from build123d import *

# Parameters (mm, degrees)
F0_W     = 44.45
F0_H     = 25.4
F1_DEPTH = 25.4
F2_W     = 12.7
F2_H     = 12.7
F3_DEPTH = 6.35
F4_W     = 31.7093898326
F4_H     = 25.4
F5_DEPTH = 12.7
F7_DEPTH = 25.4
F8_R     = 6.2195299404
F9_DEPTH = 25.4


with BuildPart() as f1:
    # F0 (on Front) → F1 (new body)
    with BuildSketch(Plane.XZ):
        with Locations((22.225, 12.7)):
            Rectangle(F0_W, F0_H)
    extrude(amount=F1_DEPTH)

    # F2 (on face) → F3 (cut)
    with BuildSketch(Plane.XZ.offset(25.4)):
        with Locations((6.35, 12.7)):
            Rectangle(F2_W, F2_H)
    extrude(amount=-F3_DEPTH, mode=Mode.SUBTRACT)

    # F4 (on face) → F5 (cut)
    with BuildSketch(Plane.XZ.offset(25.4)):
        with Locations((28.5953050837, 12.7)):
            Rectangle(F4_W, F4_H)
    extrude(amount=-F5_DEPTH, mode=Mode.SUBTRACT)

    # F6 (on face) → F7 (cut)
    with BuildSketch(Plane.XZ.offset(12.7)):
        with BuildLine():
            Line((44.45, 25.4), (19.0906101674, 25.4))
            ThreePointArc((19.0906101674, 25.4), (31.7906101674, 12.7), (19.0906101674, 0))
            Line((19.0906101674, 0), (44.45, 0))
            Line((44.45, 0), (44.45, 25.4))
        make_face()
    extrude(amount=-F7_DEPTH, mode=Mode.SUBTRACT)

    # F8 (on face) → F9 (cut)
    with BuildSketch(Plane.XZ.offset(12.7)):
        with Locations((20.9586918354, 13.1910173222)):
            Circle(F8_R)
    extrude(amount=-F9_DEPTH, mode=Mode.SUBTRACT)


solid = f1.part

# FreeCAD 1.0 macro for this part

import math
import FreeCAD as App
import Part
import Sketcher
from FreeCAD import Vector
Q = App.Units.Quantity

doc = App.newDocument("Part")
body = doc.addObject("PartDesign::Body", "Body")

sketch1 = body.newObject("Sketcher::SketchObject", "Sketch")
sketch1.AttachmentSupport = (doc.getObject("XZ_Plane"), [""])
sketch1.MapMode = "FlatFace"
sketch1.addGeometry([
    Part.LineSegment(Vector(0, 25, 0), Vector(0, 0, 0)),
    Part.LineSegment(Vector(0, 0, 0), Vector(44, 0, 0)),
    Part.LineSegment(Vector(44, 0, 0), Vector(44, 25, 0)),
    Part.LineSegment(Vector(44, 25, 0), Vector(0, 25, 0)),
], False)
sketch1.addConstraint([
    Sketcher.Constraint("Coincident", 0, 2, 1, 1),
    Sketcher.Constraint("Coincident", 1, 2, 2, 1),
    Sketcher.Constraint("Coincident", 2, 2, 3, 1),
    Sketcher.Constraint("Coincident", 3, 2, 0, 1),
    Sketcher.Constraint("Vertical", 0),
    Sketcher.Constraint("Horizontal", 1),
    Sketcher.Constraint("Vertical", 2),
    Sketcher.Constraint("Horizontal", 3),
    Sketcher.Constraint("Coincident", 0, 2, -1, 1),
    Sketcher.Constraint("DistanceY", 0, 2, 0, 1, Q("1 in")),
    Sketcher.Constraint("DistanceX", 1, 1, 1, 2, Q("1.75 in")),
])
pad1 = body.newObject("PartDesign::Pad", "Pad")
pad1.Profile = sketch1
pad1.Length = Q("1 in")

sketch2 = body.newObject("Sketcher::SketchObject", "Sketch001")
sketch2.AttachmentSupport = (doc.getObject("XZ_Plane"), [""])
sketch2.MapMode = "FlatFace"
sketch2.AttachmentOffset = App.Placement(Vector(0, 0, 1 * 25.4), App.Rotation())
sketch2.addGeometry([
    Part.LineSegment(Vector(0, 19, 0), Vector(0, 6, 0)),
    Part.LineSegment(Vector(0, 6, 0), Vector(13, 6, 0)),
    Part.LineSegment(Vector(13, 6, 0), Vector(13, 19, 0)),
    Part.LineSegment(Vector(13, 19, 0), Vector(0, 19, 0)),
], False)
sketch2.addConstraint([
    Sketcher.Constraint("Coincident", 0, 2, 1, 1),
    Sketcher.Constraint("Coincident", 1, 2, 2, 1),
    Sketcher.Constraint("Coincident", 2, 2, 3, 1),
    Sketcher.Constraint("Coincident", 3, 2, 0, 1),
    Sketcher.Constraint("Vertical", 0),
    Sketcher.Constraint("Horizontal", 1),
    Sketcher.Constraint("Vertical", 2),
    Sketcher.Constraint("Horizontal", 3),
    Sketcher.Constraint("PointOnObject", 0, 2, -2),
    Sketcher.Constraint("Equal", 3, 0),
    Sketcher.Constraint("DistanceX", 1, 1, 1, 2, Q("0.5 in")),
    Sketcher.Constraint("DistanceY", -1, 1, 0, 2, Q("0.25 in")),
])
pocket1 = body.newObject("PartDesign::Pocket", "Pocket")
pocket1.Profile = sketch2
pocket1.Length = Q("0.25 in")

sketch3 = body.newObject("Sketcher::SketchObject", "Sketch002")
sketch3.AttachmentSupport = (doc.getObject("XZ_Plane"), [""])
sketch3.MapMode = "FlatFace"
sketch3.AttachmentOffset = App.Placement(Vector(0, 0, 1 * 25.4), App.Rotation())
sketch3.addGeometry([
    Part.LineSegment(Vector(13, 25, 0), Vector(13, 0, 0)),
    Part.LineSegment(Vector(13, 0, 0), Vector(44, 0, 0)),
    Part.LineSegment(Vector(44, 0, 0), Vector(44, 25, 0)),
    Part.LineSegment(Vector(44, 25, 0), Vector(13, 25, 0)),
], False)
sketch3.addConstraint([
    Sketcher.Constraint("Coincident", 0, 2, 1, 1),
    Sketcher.Constraint("Coincident", 1, 2, 2, 1),
    Sketcher.Constraint("Coincident", 2, 2, 3, 1),
    Sketcher.Constraint("Coincident", 3, 2, 0, 1),
    Sketcher.Constraint("Vertical", 0),
    Sketcher.Constraint("Horizontal", 1),
    Sketcher.Constraint("Vertical", 2),
    Sketcher.Constraint("Horizontal", 3),
    Sketcher.Constraint("PointOnObject", 0, 2, -1),
    Sketcher.Constraint("DistanceY", 0, 2, 0, 1, Q("1 in")),
    Sketcher.Constraint("DistanceX", -1, 1, 1, 2, Q("1.75 in")),
    Sketcher.Constraint("DistanceX", 1, 1, 1, 2, 31.70939),
])
pocket2 = body.newObject("PartDesign::Pocket", "Pocket001")
pocket2.Profile = sketch3
pocket2.Length = Q("0.5 in")

sketch4 = body.newObject("Sketcher::SketchObject", "Sketch003")
sketch4.AttachmentSupport = (doc.getObject("XZ_Plane"), [""])
sketch4.MapMode = "FlatFace"
sketch4.AttachmentOffset = App.Placement(Vector(0, 0, 0.5 * 25.4), App.Rotation())
sketch4.addGeometry([
    Part.LineSegment(Vector(44, 25, 0), Vector(19, 25, 0)),
    Part.ArcOfCircle(Part.Circle(Vector(19, 13, 0), Vector(0, 0, 1), 13), math.radians(-90), math.radians(90)),
    Part.LineSegment(Vector(19, 0, 0), Vector(44, 0, 0)),
    Part.LineSegment(Vector(44, 0, 0), Vector(44, 25, 0)),
], False)
sketch4.addConstraint([
    Sketcher.Constraint("Tangent", 0, 2, 1, 2),
    Sketcher.Constraint("Tangent", 1, 1, 2, 1),
    Sketcher.Constraint("Coincident", 2, 2, 3, 1),
    Sketcher.Constraint("Coincident", 3, 2, 0, 1),
    Sketcher.Constraint("Horizontal", 0),
    Sketcher.Constraint("Horizontal", 2),
    Sketcher.Constraint("Vertical", 3),
    Sketcher.Constraint("PointOnObject", 1, 1, -1),
    Sketcher.Constraint("Radius", 1, Q("0.5 in")),
    Sketcher.Constraint("DistanceX", -1, 1, 2, 2, Q("1.75 in")),
    Sketcher.Constraint("DistanceX", 0, 2, 0, 1, 25.35939),
])
pocket3 = body.newObject("PartDesign::Pocket", "Pocket002")
pocket3.Profile = sketch4
pocket3.Length = Q("1 in")

sketch5 = body.newObject("Sketcher::SketchObject", "Sketch004")
sketch5.AttachmentSupport = (doc.getObject("XZ_Plane"), [""])
sketch5.MapMode = "FlatFace"
sketch5.AttachmentOffset = App.Placement(Vector(0, 0, 0.5 * 25.4), App.Rotation())
sketch5.addGeometry(Part.Circle(Vector(21, 13, 0), Vector(0, 0, 1), 6), False)
sketch5.addConstraint([
    Sketcher.Constraint("Diameter", 0, 12.43906),
    Sketcher.Constraint("DistanceX", -1, 1, 0, 3, 20.958692),
    Sketcher.Constraint("DistanceY", -1, 1, 0, 3, 13.191017),
])
pocket4 = body.newObject("PartDesign::Pocket", "Pocket003")
pocket4.Profile = sketch5
pocket4.Length = Q("1 in")

doc.recompute()
